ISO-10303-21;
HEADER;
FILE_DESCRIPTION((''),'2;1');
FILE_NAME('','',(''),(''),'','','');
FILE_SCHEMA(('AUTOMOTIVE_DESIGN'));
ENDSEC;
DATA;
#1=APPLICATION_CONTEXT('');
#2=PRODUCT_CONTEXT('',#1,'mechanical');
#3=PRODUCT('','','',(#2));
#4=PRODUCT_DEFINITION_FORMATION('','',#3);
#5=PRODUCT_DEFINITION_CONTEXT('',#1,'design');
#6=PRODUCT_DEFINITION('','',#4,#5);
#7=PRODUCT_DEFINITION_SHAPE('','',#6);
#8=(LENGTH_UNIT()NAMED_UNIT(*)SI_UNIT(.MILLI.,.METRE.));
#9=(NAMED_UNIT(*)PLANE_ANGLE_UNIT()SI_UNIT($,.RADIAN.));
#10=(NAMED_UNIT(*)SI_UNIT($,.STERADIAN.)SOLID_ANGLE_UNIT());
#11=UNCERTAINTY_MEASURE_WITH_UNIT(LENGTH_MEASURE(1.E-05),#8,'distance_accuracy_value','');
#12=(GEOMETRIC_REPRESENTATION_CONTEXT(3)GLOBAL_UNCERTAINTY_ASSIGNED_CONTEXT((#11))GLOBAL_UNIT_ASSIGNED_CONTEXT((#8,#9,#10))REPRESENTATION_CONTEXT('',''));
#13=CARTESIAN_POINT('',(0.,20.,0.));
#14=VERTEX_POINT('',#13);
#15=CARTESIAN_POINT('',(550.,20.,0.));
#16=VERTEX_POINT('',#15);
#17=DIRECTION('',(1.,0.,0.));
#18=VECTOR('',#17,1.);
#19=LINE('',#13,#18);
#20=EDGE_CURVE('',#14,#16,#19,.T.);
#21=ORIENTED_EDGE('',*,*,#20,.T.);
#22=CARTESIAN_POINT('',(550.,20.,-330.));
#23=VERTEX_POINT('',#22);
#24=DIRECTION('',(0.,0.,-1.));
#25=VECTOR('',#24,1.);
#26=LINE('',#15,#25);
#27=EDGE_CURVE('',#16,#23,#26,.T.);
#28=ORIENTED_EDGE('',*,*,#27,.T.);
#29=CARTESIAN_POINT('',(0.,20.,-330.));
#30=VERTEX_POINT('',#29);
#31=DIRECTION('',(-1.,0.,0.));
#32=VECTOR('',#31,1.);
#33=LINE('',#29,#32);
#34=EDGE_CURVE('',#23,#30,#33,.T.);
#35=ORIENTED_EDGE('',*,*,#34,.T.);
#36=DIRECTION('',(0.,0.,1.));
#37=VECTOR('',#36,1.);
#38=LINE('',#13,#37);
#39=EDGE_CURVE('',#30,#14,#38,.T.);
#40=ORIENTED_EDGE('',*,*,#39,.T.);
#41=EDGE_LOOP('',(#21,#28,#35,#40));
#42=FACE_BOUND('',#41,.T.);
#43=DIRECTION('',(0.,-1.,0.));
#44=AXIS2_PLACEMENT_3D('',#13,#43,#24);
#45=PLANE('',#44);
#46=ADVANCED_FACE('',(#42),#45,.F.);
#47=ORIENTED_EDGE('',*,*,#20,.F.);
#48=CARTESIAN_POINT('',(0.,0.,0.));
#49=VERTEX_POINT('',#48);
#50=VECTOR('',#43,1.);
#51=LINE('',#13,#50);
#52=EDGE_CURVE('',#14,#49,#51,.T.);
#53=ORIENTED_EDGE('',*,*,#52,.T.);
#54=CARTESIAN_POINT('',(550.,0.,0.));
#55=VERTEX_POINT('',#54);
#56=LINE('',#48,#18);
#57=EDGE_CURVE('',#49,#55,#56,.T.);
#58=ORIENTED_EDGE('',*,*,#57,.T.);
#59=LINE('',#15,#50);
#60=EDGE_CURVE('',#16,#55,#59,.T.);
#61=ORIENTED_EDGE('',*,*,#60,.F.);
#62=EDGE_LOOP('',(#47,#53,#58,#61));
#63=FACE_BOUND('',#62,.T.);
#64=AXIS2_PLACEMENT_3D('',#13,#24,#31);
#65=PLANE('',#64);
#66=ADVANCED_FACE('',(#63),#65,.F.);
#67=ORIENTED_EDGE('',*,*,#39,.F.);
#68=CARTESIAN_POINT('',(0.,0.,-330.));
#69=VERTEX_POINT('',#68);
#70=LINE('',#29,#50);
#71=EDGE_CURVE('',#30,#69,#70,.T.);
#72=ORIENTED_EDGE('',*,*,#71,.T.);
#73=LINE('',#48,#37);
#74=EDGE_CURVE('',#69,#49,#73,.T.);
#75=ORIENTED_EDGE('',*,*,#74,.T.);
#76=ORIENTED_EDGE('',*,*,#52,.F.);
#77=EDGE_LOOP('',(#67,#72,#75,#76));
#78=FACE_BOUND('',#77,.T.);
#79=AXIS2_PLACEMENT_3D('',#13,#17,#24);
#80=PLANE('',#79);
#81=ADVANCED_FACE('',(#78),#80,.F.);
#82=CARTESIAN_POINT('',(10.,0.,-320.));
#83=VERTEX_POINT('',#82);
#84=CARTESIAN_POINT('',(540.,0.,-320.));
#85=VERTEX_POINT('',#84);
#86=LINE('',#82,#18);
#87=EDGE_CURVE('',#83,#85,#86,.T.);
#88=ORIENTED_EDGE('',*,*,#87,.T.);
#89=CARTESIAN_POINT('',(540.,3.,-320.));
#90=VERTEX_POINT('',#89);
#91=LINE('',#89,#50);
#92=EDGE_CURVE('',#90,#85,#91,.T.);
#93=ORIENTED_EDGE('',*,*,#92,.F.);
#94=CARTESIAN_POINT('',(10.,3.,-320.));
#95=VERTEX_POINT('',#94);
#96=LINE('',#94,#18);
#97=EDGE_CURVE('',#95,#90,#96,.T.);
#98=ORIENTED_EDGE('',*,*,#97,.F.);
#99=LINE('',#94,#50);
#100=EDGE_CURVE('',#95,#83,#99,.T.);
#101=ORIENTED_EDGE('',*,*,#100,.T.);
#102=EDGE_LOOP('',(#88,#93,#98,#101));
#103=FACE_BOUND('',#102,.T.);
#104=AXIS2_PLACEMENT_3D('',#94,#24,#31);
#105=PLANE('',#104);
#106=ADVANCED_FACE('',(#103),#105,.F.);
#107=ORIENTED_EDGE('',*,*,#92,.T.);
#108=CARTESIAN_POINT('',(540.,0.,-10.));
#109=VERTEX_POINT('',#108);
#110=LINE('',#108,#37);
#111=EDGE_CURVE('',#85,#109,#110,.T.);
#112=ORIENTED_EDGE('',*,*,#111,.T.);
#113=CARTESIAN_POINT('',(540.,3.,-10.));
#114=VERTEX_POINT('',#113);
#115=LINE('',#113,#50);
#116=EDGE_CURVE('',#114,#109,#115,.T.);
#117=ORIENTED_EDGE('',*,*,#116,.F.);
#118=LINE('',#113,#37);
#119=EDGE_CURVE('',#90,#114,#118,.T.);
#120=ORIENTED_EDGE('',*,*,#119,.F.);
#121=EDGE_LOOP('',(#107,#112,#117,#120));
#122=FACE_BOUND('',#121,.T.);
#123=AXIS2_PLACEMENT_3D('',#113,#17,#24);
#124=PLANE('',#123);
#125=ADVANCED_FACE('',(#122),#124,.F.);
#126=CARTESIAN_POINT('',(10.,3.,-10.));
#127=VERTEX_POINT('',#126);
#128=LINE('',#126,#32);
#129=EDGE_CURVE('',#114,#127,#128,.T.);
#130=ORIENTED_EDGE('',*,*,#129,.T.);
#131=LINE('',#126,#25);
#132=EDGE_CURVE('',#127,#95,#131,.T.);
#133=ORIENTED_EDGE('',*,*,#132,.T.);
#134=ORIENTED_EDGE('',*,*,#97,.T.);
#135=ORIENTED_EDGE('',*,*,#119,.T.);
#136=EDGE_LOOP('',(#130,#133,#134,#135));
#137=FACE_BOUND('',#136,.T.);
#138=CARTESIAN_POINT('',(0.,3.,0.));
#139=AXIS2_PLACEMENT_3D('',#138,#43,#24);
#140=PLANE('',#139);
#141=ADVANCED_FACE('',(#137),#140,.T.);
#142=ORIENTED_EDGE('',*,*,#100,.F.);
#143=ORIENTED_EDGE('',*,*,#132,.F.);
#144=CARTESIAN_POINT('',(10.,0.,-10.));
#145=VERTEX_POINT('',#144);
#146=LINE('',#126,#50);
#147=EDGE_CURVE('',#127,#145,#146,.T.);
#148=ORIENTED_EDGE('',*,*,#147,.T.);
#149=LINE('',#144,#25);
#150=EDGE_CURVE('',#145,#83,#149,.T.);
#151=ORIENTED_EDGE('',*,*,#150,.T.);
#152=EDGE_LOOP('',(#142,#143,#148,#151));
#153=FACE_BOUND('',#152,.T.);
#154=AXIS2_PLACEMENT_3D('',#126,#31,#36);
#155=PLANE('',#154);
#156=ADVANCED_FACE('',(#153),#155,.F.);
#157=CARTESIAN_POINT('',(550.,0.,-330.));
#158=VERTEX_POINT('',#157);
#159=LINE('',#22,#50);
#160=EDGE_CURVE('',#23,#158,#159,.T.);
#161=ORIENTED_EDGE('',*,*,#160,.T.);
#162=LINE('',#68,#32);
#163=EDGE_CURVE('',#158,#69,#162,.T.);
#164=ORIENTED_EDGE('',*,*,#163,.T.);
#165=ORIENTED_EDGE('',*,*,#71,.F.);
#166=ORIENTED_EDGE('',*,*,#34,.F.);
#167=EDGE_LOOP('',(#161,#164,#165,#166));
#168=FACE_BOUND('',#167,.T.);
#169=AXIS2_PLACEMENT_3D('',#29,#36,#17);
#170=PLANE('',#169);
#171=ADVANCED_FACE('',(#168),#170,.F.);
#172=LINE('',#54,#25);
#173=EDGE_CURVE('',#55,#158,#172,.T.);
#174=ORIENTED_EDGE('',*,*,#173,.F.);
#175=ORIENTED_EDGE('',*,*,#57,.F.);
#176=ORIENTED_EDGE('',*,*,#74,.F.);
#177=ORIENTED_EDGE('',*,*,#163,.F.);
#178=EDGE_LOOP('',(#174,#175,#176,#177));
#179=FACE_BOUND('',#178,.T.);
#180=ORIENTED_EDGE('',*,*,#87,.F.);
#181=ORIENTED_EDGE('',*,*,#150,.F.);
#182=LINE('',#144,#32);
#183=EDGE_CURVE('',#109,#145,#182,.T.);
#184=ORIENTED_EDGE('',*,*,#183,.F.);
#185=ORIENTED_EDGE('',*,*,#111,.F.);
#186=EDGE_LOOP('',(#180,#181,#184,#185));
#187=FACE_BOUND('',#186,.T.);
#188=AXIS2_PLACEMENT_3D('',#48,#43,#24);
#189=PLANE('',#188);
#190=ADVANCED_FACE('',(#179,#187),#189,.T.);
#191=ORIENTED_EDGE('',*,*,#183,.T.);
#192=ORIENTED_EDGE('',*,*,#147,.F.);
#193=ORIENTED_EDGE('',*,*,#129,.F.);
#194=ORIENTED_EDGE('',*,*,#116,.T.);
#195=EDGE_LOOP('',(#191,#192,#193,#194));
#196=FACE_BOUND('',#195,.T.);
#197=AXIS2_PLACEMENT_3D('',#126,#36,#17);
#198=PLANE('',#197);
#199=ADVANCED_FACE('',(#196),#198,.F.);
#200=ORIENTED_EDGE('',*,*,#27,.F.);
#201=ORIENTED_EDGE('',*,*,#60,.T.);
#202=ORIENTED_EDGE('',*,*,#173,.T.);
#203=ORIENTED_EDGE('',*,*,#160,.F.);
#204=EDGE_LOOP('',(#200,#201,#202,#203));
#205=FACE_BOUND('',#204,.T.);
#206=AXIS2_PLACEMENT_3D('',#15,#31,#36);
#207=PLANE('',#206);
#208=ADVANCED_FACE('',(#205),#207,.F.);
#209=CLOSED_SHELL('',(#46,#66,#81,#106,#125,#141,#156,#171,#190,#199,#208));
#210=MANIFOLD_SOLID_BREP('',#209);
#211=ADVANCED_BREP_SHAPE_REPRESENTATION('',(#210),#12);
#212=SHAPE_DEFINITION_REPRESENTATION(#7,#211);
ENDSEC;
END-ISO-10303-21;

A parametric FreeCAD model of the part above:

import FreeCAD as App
import Part
import Sketcher
from FreeCAD import Vector

doc = App.newDocument("Part")
body = doc.addObject("PartDesign::Body", "Body")

sketch1 = body.newObject("Sketcher::SketchObject", "Sketch")
sketch1.AttachmentSupport = (doc.getObject("XZ_Plane"), [""])
sketch1.MapMode = "FlatFace"
sketch1.addGeometry([
    Part.LineSegment(Vector(0, -330, 0), Vector(0, 0, 0)),
    Part.LineSegment(Vector(0, 0, 0), Vector(550, 0, 0)),
    Part.LineSegment(Vector(550, 0, 0), Vector(550, -330, 0)),
    Part.LineSegment(Vector(550, -330, 0), Vector(0, -330, 0)),
], False)
sketch1.addConstraint([
    Sketcher.Constraint("Coincident", 0, 2, 1, 1),
    Sketcher.Constraint("Coincident", 1, 2, 2, 1),
    Sketcher.Constraint("Coincident", 2, 2, 3, 1),
    Sketcher.Constraint("Coincident", 3, 2, 0, 1),
    Sketcher.Constraint("Vertical", 0),
    Sketcher.Constraint("Horizontal", 1),
    Sketcher.Constraint("Vertical", 2),
    Sketcher.Constraint("Horizontal", 3),
    Sketcher.Constraint("Coincident", 0, 2, -1, 1),
    Sketcher.Constraint("DistanceX", 1, 1, 1, 2, 550.0),
    Sketcher.Constraint("DistanceY", 0, 1, 0, 2, 330.0),
])
pad1 = body.newObject("PartDesign::Pad", "Pad")
pad1.Profile = sketch1
pad1.Length = 20
pad1.Reversed = True

sketch2 = body.newObject("Sketcher::SketchObject", "Sketch001")
sketch2.AttachmentSupport = (doc.getObject("XZ_Plane"), [""])
sketch2.MapMode = "FlatFace"
sketch2.addGeometry([
    Part.LineSegment(Vector(10, -10, 0), Vector(10, -320, 0)),
    Part.LineSegment(Vector(10, -320, 0), Vector(540, -320, 0)),
    Part.LineSegment(Vector(540, -320, 0), Vector(540, -10, 0)),
    Part.LineSegment(Vector(540, -10, 0), Vector(10, -10, 0)),
], False)
sketch2.addConstraint([
    Sketcher.Constraint("Coincident", 0, 2, 1, 1),
    Sketcher.Constraint("Coincident", 1, 2, 2, 1),
    Sketcher.Constraint("Coincident", 2, 2, 3, 1),
    Sketcher.Constraint("Coincident", 3, 2, 0, 1),
    Sketcher.Constraint("Vertical", 0),
    Sketcher.Constraint("Horizontal", 1),
    Sketcher.Constraint("Vertical", 2),
    Sketcher.Constraint("Horizontal", 3),
    Sketcher.Constraint("DistanceX", 1, 1, 1, 2, 530.0),
    Sketcher.Constraint("DistanceY", 0, 2, 0, 1, 310.0),
    Sketcher.Constraint("DistanceX", -1, 1, 0, 2, 10.0),
    Sketcher.Constraint("DistanceY", 0, 2, -1, 1, 320.0),
])
pocket1 = body.newObject("PartDesign::Pocket", "Pocket")
pocket1.Profile = sketch2
pocket1.Length = 3

doc.recompute()
